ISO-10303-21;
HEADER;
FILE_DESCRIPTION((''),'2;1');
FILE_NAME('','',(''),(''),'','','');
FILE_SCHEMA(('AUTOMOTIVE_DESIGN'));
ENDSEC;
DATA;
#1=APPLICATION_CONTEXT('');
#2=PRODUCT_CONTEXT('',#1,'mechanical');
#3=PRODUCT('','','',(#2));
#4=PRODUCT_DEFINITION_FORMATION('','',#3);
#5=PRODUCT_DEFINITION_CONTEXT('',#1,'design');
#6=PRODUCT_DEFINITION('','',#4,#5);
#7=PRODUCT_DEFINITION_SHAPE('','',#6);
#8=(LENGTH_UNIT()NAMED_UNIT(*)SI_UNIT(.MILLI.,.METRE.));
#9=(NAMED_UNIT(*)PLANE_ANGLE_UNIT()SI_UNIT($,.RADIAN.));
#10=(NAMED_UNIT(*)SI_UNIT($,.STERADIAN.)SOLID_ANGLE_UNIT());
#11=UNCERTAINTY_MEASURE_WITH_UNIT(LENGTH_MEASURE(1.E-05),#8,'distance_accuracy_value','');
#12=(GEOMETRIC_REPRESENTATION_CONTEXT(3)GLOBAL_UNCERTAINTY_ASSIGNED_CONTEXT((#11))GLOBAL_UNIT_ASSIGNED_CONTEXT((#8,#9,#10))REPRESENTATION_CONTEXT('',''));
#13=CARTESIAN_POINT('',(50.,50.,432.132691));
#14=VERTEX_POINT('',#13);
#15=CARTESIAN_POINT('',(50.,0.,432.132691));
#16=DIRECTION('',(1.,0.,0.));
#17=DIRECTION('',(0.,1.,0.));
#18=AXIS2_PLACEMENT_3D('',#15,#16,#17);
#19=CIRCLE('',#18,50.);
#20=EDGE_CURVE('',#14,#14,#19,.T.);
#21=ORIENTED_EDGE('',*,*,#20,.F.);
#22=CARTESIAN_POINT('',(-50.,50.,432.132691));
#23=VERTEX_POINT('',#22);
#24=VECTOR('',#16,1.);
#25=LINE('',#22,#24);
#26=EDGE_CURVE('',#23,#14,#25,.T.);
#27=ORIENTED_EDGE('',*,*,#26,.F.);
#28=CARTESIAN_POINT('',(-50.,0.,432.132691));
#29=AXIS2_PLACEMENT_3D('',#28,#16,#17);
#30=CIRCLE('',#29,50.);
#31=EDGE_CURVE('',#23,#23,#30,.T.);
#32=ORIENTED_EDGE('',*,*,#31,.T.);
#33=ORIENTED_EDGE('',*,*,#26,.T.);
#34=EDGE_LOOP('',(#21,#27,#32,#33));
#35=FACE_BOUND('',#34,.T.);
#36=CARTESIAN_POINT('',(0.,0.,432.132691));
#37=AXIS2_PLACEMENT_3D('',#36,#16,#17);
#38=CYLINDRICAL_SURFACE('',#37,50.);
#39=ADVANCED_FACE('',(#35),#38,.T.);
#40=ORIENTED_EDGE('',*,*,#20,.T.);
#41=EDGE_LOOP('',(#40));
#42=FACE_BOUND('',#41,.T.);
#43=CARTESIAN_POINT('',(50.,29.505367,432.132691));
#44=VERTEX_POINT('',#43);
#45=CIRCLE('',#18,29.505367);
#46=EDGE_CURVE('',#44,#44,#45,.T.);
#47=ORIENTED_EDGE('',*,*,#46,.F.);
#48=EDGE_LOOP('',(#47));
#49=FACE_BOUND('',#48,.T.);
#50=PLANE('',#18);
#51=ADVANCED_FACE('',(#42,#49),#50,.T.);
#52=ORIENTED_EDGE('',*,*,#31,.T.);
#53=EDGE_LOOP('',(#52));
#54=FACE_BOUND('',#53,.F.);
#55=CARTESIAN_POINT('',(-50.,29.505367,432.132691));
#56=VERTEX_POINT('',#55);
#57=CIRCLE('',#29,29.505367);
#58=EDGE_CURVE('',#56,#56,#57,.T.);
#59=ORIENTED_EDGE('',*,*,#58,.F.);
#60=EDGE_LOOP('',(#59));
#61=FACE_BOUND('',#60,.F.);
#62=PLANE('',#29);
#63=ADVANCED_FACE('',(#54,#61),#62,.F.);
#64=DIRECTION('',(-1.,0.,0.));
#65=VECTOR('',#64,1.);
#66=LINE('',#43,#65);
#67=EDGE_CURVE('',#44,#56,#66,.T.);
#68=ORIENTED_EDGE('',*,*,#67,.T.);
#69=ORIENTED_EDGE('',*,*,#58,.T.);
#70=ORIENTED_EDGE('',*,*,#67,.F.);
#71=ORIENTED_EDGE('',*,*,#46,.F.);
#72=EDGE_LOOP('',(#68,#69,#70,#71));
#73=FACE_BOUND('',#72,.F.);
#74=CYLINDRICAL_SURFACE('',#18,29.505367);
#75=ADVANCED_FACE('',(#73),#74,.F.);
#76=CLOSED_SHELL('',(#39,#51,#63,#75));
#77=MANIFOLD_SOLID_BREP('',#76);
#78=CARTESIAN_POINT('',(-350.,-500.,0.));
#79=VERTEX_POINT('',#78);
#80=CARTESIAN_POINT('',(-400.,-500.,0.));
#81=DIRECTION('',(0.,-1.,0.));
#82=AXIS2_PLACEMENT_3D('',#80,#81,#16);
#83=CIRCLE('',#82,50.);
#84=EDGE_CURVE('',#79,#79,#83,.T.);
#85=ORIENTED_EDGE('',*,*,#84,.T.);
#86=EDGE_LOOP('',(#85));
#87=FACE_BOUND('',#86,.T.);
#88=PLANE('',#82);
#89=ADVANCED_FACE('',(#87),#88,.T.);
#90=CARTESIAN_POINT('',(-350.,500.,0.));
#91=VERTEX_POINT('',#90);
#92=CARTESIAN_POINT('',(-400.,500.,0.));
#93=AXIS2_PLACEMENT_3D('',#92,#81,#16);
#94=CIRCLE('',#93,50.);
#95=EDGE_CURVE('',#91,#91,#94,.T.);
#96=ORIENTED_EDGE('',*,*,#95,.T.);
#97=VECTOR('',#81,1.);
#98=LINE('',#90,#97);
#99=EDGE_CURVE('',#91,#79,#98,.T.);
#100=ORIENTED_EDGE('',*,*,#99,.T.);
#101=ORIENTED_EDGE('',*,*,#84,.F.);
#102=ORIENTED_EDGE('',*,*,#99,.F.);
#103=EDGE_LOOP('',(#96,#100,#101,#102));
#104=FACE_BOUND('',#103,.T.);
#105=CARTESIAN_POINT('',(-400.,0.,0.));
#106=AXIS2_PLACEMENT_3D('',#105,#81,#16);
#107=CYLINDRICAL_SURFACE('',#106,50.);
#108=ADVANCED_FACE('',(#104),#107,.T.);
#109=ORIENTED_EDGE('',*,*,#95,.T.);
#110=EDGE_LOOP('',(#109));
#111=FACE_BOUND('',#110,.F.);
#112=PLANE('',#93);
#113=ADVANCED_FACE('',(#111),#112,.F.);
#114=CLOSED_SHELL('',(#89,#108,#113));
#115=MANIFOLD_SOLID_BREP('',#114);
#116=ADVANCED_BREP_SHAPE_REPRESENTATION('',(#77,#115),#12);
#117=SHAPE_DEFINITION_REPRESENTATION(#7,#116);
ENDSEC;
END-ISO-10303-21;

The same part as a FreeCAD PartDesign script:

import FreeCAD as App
import Part
import Sketcher
Q = App.Units.Quantity

doc = App.newDocument("Part")
body = doc.addObject("PartDesign::Body", "Body")

# Sketch on XZ plane
sketch1 = doc.addObject("Sketcher::SketchObject", "Sketch")
body.addObject(sketch1)
sketch1.AttachmentSupport = (doc.XZ_Plane, [""])
sketch1.MapMode = "FlatFace"
sketch1.addGeometry(Part.Circle(App.Vector(-400, 0, 0), App.Vector(0, 0, 1), 50), False)
sketch1.addConstraint([
    Sketcher.Constraint("PointOnObject", 0, 3, -1),
    Sketcher.Constraint("Diameter", 0, Q("100 mm")),
    Sketcher.Constraint("DistanceX", 0, 3, -1, 1, Q("400 mm")),
])
pad1 = doc.addObject("PartDesign::Pad", "Pad")
body.addObject(pad1)
pad1.Profile = sketch1
pad1.Length = 1000
pad1.Midplane = True
body2 = doc.addObject("PartDesign::Body", "Body001")

# Sketch on YZ plane
sketch2 = doc.addObject("Sketcher::SketchObject", "Sketch001")
body2.addObject(sketch2)
sketch2.AttachmentSupport = (doc.getObject("YZ_Plane001"), [""])
sketch2.MapMode = "FlatFace"
sketch2.addGeometry(Part.Circle(App.Vector(0, 432, 0), App.Vector(0, 0, 1), 50), False)
sketch2.addConstraint([
    Sketcher.Constraint("PointOnObject", 0, 3, -2),
    Sketcher.Constraint("Diameter", 0, Q("100 mm")),
    Sketcher.Constraint("DistanceY", -1, 1, 0, 3, Q("432.132691 mm")),
])
pad2 = doc.addObject("PartDesign::Pad", "Pad001")
body2.addObject(pad2)
pad2.Profile = sketch2
pad2.Length = 100
pad2.Midplane = True

# Sketch on YZ plane
sketch3 = doc.addObject("Sketcher::SketchObject", "Sketch002")
body2.addObject(sketch3)
sketch3.AttachmentSupport = (doc.getObject("YZ_Plane001"), [""])
sketch3.MapMode = "FlatFace"
sketch3.AttachmentOffset = App.Placement(App.Vector(0, 0, 50), App.Rotation())
sketch3.addGeometry(Part.Circle(App.Vector(0, 432, 0), App.Vector(0, 0, 1), 30), False)
sketch3.addConstraint([
    Sketcher.Constraint("PointOnObject", 0, 3, -2),
    Sketcher.Constraint("Diameter", 0, Q("59.010734 mm")),
    Sketcher.Constraint("DistanceY", -1, 1, 0, 3, Q("432.132691 mm")),
])
pocket1 = doc.addObject("PartDesign::Pocket", "Pocket")
body2.addObject(pocket1)
pocket1.Profile = sketch3
pocket1.Type = "ThroughAll"

doc.recompute()
